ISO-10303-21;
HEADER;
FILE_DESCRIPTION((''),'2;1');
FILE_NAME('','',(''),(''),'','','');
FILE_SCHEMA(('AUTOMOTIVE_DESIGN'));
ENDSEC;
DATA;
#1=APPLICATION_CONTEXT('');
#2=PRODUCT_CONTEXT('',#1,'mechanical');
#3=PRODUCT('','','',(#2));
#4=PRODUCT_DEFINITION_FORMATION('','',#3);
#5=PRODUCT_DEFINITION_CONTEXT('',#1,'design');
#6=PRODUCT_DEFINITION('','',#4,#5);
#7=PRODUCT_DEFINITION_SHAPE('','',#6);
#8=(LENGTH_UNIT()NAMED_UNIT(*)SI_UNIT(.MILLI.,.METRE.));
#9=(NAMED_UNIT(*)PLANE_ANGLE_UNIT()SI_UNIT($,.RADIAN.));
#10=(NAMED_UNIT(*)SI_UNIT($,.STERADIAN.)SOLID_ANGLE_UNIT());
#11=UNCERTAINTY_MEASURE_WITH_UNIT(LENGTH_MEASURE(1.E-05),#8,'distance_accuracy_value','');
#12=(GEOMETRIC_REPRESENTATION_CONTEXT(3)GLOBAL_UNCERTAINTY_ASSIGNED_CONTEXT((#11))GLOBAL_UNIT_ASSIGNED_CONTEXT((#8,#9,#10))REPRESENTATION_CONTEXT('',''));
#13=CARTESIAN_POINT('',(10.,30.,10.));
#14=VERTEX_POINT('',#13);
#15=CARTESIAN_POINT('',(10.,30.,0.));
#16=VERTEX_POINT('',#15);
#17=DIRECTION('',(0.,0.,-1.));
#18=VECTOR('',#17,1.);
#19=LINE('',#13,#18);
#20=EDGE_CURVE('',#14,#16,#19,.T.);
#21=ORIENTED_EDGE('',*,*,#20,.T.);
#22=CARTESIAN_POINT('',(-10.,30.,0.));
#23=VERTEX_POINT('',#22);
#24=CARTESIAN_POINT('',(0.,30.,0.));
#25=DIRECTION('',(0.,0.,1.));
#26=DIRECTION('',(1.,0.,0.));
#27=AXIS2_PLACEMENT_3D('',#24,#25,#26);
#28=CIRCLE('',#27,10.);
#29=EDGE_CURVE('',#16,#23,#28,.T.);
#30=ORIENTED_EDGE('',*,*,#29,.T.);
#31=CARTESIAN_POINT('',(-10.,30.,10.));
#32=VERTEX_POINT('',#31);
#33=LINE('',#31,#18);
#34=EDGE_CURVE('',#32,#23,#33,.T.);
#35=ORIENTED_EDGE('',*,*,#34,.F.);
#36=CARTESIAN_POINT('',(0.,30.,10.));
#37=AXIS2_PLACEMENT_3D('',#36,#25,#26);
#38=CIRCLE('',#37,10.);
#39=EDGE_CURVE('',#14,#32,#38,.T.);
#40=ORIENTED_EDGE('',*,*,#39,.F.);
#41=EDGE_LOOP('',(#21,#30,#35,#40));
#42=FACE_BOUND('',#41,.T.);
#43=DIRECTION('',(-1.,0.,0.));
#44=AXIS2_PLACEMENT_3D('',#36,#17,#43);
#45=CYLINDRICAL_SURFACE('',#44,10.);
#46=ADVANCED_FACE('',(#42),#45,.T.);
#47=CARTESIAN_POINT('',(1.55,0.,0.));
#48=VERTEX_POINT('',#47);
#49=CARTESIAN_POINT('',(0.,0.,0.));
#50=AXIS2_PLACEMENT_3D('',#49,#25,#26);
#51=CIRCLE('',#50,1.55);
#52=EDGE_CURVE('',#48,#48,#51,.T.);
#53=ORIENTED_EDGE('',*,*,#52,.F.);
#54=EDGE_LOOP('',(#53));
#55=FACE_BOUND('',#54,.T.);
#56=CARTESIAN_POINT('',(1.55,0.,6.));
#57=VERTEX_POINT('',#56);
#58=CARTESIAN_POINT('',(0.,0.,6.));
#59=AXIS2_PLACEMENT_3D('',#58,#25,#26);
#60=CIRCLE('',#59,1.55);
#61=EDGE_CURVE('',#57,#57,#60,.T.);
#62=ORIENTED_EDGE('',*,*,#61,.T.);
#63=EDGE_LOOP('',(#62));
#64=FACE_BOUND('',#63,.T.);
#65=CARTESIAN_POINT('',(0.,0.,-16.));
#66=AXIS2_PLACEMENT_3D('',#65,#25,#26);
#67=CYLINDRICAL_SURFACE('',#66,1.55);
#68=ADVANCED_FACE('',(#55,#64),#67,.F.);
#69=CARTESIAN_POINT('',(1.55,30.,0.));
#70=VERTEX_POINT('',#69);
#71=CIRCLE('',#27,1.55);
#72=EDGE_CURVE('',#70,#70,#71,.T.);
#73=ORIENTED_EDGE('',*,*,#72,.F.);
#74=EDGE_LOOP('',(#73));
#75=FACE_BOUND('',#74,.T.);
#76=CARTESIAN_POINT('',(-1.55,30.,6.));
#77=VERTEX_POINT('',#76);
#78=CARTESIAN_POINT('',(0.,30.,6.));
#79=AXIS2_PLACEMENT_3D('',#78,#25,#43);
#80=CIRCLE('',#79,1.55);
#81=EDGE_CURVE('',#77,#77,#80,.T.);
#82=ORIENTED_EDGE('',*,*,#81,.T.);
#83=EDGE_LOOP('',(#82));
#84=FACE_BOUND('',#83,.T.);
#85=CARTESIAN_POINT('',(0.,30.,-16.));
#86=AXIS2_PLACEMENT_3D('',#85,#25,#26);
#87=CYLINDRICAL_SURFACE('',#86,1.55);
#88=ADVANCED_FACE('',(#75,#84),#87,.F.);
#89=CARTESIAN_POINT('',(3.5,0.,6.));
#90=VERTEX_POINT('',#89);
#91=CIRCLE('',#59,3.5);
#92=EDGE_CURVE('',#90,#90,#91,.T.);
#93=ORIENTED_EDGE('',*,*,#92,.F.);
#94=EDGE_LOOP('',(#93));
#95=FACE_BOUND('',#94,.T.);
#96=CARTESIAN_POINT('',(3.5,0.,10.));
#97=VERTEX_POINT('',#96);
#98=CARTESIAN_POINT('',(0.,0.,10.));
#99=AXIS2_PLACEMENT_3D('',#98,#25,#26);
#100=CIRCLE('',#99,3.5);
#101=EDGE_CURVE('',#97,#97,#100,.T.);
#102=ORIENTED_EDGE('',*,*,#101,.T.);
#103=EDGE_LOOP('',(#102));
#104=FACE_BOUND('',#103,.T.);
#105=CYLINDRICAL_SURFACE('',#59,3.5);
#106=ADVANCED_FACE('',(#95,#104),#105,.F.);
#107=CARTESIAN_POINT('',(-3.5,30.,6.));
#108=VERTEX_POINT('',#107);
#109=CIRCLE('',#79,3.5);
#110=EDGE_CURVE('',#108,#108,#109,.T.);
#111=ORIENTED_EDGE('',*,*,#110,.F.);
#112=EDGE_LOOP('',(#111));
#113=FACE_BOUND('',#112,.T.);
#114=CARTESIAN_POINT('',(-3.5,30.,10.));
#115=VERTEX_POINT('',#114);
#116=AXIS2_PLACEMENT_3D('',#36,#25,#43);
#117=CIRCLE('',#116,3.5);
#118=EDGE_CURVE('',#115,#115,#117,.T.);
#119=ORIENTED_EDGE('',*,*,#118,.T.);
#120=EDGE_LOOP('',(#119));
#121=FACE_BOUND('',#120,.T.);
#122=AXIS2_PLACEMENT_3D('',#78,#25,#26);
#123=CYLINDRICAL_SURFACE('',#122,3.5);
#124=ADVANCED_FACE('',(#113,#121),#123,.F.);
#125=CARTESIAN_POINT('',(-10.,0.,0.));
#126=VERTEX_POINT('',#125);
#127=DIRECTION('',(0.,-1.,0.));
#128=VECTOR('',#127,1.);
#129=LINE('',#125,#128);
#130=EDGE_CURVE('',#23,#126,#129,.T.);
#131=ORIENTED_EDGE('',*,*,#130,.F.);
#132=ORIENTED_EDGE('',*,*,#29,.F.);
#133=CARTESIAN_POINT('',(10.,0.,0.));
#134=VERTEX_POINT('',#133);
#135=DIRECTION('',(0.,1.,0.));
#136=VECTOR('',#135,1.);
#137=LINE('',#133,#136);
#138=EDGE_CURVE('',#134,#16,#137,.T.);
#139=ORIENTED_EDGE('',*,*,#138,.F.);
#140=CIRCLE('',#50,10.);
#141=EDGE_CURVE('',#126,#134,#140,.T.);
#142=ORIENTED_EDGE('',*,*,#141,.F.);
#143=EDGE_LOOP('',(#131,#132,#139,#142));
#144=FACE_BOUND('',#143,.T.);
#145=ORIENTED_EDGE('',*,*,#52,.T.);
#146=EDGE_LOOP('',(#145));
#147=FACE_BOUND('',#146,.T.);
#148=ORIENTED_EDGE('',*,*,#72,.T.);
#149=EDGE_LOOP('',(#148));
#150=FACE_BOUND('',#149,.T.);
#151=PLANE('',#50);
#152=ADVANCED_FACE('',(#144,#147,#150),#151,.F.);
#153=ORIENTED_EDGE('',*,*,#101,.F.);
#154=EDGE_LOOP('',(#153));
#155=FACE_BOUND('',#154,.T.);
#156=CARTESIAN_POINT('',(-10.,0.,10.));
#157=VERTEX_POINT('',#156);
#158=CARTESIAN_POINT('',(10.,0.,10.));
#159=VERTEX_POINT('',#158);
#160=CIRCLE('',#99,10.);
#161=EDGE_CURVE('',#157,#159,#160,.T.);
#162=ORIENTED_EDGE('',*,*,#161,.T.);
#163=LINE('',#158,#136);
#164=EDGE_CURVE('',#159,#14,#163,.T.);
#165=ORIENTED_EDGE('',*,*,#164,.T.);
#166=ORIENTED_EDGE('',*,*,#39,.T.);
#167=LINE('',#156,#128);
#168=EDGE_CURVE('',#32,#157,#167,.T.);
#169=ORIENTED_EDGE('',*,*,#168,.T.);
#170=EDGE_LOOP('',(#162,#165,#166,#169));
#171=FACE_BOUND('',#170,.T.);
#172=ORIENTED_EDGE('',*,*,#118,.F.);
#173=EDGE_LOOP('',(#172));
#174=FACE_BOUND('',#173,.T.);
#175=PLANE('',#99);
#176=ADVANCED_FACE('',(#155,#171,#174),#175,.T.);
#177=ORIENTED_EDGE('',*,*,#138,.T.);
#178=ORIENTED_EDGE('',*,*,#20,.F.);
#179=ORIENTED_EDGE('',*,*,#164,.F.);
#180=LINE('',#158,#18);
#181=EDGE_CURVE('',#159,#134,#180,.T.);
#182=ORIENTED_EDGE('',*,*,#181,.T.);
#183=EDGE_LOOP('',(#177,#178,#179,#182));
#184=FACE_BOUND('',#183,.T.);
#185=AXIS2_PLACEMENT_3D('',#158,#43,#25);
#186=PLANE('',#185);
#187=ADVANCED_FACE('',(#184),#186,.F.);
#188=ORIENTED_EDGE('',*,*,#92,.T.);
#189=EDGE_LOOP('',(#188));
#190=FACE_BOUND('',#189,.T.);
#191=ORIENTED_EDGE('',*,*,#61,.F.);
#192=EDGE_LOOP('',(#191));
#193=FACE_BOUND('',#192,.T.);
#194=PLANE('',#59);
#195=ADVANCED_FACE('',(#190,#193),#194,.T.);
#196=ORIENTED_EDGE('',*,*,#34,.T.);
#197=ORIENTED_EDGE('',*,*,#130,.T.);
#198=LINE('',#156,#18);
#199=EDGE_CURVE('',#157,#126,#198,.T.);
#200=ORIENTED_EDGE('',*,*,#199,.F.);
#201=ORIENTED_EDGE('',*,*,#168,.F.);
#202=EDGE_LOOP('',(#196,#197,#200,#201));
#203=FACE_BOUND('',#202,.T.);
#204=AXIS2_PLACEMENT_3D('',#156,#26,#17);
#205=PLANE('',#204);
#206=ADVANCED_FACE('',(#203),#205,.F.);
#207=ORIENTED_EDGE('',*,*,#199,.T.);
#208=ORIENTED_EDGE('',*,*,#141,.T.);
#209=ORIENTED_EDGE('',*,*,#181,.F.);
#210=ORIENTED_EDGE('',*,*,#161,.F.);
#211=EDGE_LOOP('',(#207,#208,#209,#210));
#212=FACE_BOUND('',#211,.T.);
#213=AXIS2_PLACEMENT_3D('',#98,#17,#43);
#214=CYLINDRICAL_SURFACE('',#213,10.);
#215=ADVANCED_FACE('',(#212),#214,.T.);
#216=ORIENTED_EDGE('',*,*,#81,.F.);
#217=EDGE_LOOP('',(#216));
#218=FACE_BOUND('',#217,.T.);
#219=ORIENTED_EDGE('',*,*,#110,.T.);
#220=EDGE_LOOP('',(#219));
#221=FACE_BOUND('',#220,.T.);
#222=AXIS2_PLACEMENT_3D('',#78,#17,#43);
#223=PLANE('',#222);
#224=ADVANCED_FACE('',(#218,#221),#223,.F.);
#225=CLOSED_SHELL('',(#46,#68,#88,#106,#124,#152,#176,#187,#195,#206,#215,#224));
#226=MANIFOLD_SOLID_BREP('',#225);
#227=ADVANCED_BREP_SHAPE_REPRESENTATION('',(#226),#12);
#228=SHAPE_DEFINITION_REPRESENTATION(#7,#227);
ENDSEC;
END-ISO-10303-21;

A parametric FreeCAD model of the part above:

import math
import FreeCAD as App
import Part
import Sketcher
from FreeCAD import Vector
Q = App.Units.Quantity

doc = App.newDocument("Part")
body = doc.addObject("PartDesign::Body", "Body")

# Sketch on XY plane
sketch1 = body.newObject("Sketcher::SketchObject", "Sketch")
sketch1.AttachmentSupport = (doc.getObject("XY_Plane"), [""])
sketch1.MapMode = "FlatFace"
sketch1.addGeometry([
    Part.LineSegment(Vector(-10, 30, 0), Vector(-10, 0, 0)),
    Part.ArcOfCircle(Part.Circle(Vector(0, 0, 0), Vector(0, 0, 1), 10), math.radians(180), math.radians(360)),
    Part.LineSegment(Vector(10, 0, 0), Vector(10, 30, 0)),
    Part.ArcOfCircle(Part.Circle(Vector(0, 30, 0), Vector(0, 0, 1), 10), math.radians(0), math.radians(180)),
], False)
sketch1.addConstraint([
    Sketcher.Constraint("Tangent", 0, 2, 1, 1),
    Sketcher.Constraint("Tangent", 1, 2, 2, 1),
    Sketcher.Constraint("Tangent", 2, 2, 3, 1),
    Sketcher.Constraint("Tangent", 3, 2, 0, 1),
    Sketcher.Constraint("Vertical", 0),
    Sketcher.Constraint("Vertical", 2),
    Sketcher.Constraint("Coincident", 1, 3, -1, 1),
    Sketcher.Constraint("Radius", 1, Q("10 mm")),
    Sketcher.Constraint("DistanceY", 0, 2, 0, 1, Q("30 mm")),
])
pad1 = body.newObject("PartDesign::Pad", "Pad")
pad1.Profile = sketch1
pad1.Length = 10

# Sketch on XY plane
sketch2 = body.newObject("Sketcher::SketchObject", "Sketch001")
sketch2.AttachmentSupport = (doc.getObject("XY_Plane"), [""])
sketch2.MapMode = "FlatFace"
sketch2.AttachmentOffset = App.Placement(Vector(0, 0, 10), App.Rotation())
sketch2.addGeometry([
    Part.Circle(Vector(0, 0, 0), Vector(0, 0, 1), 3.5),
    Part.Circle(Vector(0, 30, 0), Vector(0, 0, 1), 3.5),
], False)
sketch2.addConstraint([
    Sketcher.Constraint("Coincident", 0, 3, -1, 1),
    Sketcher.Constraint("Equal", 0, 1),
    Sketcher.Constraint("PointOnObject", 1, 3, -2),
    Sketcher.Constraint("Diameter", 0, Q("7 mm")),
    Sketcher.Constraint("DistanceY", -1, 1, 1, 3, Q("30 mm")),
])
pocket1 = body.newObject("PartDesign::Pocket", "Pocket")
pocket1.Profile = sketch2
pocket1.Length = 4

# Sketch on XY plane
sketch3 = body.newObject("Sketcher::SketchObject", "Sketch002")
sketch3.AttachmentSupport = (doc.getObject("XY_Plane"), [""])
sketch3.MapMode = "FlatFace"
sketch3.AttachmentOffset = App.Placement(Vector(0, 0, 6), App.Rotation())
sketch3.addGeometry([
    Part.Circle(Vector(0, 0, 0), Vector(0, 0, 1), 1.6),
    Part.Circle(Vector(0, 30, 0), Vector(0, 0, 1), 1.6),
], False)
sketch3.addConstraint([
    Sketcher.Constraint("Coincident", 0, 3, -1, 1),
    Sketcher.Constraint("Equal", 0, 1),
    Sketcher.Constraint("PointOnObject", 1, 3, -2),
    Sketcher.Constraint("Diameter", 0, Q("3.1 mm")),
    Sketcher.Constraint("DistanceY", -1, 1, 1, 3, Q("30 mm")),
])
pocket2 = body.newObject("PartDesign::Pocket", "Pocket001")
pocket2.Profile = sketch3
pocket2.Length = 22

doc.recompute()
